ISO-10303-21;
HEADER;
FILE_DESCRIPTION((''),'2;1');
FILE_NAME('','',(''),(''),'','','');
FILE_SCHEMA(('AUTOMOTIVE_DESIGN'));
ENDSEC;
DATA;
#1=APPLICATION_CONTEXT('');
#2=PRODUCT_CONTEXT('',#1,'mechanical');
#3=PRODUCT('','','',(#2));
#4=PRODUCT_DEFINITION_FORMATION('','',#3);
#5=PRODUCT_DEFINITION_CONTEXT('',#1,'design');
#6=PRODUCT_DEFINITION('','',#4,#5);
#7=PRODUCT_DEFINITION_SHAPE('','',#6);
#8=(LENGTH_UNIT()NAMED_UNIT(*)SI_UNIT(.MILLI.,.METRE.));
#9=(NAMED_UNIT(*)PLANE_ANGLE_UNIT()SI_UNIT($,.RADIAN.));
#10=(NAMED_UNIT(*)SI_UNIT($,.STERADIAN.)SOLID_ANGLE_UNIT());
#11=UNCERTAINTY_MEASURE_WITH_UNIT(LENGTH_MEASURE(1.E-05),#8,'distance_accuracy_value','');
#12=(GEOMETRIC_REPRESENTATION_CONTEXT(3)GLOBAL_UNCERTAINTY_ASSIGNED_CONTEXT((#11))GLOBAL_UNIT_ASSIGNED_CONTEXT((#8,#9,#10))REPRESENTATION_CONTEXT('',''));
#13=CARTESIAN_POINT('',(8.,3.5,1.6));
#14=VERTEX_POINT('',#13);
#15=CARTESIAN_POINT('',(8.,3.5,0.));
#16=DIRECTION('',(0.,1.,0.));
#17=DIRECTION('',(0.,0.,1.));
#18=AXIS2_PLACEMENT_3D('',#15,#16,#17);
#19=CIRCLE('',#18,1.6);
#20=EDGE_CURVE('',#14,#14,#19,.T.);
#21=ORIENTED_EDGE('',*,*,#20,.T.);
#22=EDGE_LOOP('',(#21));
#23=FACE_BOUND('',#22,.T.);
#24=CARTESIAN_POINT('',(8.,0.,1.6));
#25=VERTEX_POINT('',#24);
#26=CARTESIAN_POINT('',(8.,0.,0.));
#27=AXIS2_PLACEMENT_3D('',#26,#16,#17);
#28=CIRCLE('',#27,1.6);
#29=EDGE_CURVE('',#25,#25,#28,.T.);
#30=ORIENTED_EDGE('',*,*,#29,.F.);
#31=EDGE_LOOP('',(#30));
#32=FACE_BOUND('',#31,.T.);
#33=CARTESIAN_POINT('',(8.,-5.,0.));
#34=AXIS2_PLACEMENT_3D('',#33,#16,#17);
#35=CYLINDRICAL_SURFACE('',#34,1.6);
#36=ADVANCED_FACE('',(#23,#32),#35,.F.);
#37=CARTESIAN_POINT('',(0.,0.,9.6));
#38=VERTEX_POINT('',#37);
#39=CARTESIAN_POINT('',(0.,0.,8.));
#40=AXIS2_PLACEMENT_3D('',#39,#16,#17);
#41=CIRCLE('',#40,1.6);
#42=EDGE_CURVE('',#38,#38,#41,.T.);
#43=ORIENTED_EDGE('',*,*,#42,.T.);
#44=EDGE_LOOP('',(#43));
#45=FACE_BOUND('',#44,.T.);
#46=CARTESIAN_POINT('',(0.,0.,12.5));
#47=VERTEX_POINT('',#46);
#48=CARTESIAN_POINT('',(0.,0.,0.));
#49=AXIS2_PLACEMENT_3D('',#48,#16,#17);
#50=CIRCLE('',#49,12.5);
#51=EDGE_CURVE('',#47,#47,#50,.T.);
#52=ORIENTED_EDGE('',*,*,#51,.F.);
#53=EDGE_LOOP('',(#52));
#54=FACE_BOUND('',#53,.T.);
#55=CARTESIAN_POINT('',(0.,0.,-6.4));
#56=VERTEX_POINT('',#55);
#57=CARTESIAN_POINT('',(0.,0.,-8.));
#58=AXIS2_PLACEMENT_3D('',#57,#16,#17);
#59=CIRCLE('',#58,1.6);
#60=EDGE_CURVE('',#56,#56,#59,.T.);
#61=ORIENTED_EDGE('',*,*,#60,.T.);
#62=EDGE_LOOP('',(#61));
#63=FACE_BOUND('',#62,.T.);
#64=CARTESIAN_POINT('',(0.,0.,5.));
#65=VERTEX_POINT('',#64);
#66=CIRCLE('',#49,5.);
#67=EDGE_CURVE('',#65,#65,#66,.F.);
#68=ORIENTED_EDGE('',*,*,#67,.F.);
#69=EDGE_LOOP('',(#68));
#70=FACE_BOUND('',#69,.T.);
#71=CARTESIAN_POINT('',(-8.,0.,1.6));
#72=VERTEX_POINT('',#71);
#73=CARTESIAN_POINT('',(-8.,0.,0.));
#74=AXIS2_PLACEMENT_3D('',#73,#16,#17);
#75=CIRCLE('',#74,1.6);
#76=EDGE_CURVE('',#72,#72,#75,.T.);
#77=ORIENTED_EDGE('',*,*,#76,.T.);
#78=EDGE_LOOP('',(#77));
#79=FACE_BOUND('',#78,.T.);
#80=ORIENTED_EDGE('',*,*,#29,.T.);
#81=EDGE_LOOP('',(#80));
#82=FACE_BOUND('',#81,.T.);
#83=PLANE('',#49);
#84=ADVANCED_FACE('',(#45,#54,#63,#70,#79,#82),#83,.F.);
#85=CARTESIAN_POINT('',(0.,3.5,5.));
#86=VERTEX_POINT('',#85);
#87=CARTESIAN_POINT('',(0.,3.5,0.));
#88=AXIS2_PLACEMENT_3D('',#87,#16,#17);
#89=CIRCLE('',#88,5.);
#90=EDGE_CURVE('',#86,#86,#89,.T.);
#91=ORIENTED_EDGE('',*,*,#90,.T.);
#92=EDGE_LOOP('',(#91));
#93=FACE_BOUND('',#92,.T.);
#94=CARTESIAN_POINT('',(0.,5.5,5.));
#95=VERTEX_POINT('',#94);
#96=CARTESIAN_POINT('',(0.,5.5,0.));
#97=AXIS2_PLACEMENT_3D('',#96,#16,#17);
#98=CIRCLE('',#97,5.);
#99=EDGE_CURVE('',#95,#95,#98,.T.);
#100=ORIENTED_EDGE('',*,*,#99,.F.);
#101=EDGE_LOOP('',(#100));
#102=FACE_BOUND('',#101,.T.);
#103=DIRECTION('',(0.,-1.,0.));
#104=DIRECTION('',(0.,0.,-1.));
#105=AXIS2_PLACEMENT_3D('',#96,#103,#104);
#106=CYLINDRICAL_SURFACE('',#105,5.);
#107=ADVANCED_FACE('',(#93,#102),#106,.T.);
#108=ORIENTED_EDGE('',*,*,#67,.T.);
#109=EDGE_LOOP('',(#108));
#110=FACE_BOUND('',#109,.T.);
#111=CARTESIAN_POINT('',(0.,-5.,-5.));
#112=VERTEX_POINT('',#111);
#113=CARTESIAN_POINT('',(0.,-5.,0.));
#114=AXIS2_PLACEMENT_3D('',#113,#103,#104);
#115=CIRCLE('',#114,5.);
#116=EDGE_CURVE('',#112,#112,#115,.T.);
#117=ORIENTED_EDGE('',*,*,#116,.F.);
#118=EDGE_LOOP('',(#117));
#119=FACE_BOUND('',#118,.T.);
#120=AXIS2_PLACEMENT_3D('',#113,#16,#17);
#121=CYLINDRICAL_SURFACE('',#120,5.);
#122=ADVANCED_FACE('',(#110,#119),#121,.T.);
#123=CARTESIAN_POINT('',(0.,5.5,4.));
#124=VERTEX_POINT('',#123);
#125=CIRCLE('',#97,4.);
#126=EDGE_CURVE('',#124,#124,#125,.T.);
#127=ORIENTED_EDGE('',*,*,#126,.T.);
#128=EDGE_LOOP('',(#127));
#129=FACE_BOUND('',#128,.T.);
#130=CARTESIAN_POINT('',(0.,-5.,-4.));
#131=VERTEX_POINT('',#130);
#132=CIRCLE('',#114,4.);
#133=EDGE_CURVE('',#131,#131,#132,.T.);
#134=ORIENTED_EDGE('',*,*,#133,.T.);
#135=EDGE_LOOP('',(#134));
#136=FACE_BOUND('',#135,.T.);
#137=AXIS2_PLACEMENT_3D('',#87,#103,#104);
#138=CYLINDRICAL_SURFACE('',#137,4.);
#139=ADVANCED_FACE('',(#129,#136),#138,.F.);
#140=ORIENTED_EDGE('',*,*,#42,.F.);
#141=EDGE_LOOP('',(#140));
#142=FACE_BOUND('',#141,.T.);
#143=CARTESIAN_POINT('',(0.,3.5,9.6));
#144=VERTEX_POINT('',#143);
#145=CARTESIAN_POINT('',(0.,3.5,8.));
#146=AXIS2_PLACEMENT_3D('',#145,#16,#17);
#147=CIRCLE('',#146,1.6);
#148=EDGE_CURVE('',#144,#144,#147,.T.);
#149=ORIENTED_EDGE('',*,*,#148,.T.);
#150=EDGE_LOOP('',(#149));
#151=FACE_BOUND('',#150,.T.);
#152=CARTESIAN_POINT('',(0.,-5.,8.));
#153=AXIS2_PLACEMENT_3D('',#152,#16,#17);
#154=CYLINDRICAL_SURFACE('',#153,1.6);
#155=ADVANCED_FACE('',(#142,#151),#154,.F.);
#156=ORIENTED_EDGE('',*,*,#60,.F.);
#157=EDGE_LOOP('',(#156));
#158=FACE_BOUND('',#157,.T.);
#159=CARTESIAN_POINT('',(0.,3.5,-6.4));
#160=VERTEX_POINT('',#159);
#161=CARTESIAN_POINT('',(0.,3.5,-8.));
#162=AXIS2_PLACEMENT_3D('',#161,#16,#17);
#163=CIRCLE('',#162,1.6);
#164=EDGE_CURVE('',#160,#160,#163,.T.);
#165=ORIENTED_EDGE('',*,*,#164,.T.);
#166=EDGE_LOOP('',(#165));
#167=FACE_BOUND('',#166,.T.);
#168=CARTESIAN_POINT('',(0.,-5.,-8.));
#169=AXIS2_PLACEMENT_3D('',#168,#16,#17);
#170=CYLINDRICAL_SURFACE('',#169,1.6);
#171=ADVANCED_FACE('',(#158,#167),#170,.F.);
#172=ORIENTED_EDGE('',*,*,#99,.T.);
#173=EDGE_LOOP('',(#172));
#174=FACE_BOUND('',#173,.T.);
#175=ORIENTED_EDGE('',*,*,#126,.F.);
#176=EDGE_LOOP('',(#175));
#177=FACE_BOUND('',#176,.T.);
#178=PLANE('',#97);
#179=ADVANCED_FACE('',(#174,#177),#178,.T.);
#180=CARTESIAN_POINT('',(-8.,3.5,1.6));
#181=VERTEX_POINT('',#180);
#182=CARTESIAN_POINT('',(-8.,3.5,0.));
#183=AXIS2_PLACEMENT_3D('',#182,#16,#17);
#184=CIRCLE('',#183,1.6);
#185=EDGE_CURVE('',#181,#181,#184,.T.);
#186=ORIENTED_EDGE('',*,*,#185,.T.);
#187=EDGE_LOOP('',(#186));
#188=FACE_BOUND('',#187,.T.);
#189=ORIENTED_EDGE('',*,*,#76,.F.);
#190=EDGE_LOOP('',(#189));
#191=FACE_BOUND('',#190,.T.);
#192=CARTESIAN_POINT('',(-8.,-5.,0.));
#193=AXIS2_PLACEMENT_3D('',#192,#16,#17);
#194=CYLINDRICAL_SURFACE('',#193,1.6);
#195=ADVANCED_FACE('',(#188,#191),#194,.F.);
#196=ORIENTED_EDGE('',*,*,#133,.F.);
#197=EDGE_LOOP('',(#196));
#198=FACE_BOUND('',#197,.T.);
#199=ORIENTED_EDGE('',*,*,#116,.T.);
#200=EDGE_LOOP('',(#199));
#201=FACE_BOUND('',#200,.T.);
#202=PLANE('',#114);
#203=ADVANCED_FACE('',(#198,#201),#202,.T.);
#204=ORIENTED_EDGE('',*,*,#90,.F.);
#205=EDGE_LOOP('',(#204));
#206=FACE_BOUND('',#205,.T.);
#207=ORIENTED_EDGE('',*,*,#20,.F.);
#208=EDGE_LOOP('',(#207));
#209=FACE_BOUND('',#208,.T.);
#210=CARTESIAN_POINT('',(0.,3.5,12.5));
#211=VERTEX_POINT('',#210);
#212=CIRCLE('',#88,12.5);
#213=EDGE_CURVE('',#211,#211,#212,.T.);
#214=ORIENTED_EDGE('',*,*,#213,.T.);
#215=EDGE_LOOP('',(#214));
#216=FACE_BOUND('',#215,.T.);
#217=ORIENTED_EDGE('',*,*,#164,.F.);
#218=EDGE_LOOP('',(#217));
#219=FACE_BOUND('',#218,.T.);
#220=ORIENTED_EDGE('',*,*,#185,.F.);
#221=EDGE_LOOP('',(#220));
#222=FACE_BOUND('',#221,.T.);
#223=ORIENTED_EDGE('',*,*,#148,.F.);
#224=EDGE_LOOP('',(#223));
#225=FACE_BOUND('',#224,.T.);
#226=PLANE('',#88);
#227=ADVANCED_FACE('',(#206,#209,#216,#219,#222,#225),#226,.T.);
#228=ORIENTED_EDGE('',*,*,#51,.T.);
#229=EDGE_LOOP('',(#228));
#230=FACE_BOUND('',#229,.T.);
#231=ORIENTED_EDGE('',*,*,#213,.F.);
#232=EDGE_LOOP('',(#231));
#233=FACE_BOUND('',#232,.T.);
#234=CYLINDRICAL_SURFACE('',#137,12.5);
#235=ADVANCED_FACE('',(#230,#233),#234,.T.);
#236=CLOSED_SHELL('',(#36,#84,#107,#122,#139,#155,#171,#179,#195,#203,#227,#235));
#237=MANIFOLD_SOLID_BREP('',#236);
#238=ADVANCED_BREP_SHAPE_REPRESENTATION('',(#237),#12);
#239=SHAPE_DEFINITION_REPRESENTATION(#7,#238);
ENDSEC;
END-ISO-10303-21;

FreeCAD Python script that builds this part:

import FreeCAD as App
import Part
import Sketcher
from FreeCAD import Vector

doc = App.newDocument("Part")
body = doc.addObject("PartDesign::Body", "Body")

# Sketch on XZ plane
sketch1 = doc.addObject("Sketcher::SketchObject", "Sketch")
body.addObject(sketch1)
sketch1.AttachmentSupport = (doc.XZ_Plane, [""])
sketch1.MapMode = "FlatFace"
sketch1.addGeometry(Part.Circle(Vector(0, 0, 0), Vector(0, 0, 1), 12.5), False)
sketch1.addGeometry(Part.Circle(Vector(0, 0, 0), Vector(0, 0, 1), 4), False)
sketch1.addConstraint(Sketcher.Constraint("Coincident", 0, 3, -1, 1))
sketch1.addConstraint(Sketcher.Constraint("Coincident", 1, 3, -1, 1))
sketch1.addConstraint(Sketcher.Constraint("Diameter", 0, 25.0))
sketch1.addConstraint(Sketcher.Constraint("Diameter", 1, 8.0))
pad1 = doc.addObject("PartDesign::Pad", "Pad")
body.addObject(pad1)
pad1.Profile = sketch1
pad1.Length = 3.5
pad1.Reversed = True

# Sketch on XZ plane
sketch2 = doc.addObject("Sketcher::SketchObject", "Sketch001")
body.addObject(sketch2)
sketch2.AttachmentSupport = (doc.XZ_Plane, [""])
sketch2.MapMode = "FlatFace"
sketch2.AttachmentOffset = App.Placement(Vector(0, 0, -3.5), App.Rotation())
sketch2.addGeometry(Part.Circle(Vector(0, 0, 0), Vector(0, 0, 1), 5), False)
sketch2.addGeometry(Part.Circle(Vector(0, 0, 0), Vector(0, 0, 1), 4), False)
sketch2.addConstraint(Sketcher.Constraint("Coincident", 0, 3, -1, 1))
sketch2.addConstraint(Sketcher.Constraint("Coincident", 1, 3, -1, 1))
sketch2.addConstraint(Sketcher.Constraint("Diameter", 0, 10.0))
sketch2.addConstraint(Sketcher.Constraint("Diameter", 1, 8.0))
pad2 = doc.addObject("PartDesign::Pad", "Pad001")
body.addObject(pad2)
pad2.Profile = sketch2
pad2.Length = 2
pad2.Reversed = True

# Sketch on XZ plane
sketch3 = doc.addObject("Sketcher::SketchObject", "Sketch002")
body.addObject(sketch3)
sketch3.AttachmentSupport = (doc.XZ_Plane, [""])
sketch3.MapMode = "FlatFace"
sketch3.addGeometry(Part.Circle(Vector(0, 0, 0), Vector(0, 0, 1), 5), False)
sketch3.addGeometry(Part.Circle(Vector(0, 0, 0), Vector(0, 0, 1), 4), False)
sketch3.addConstraint(Sketcher.Constraint("Coincident", 0, 3, -1, 1))
sketch3.addConstraint(Sketcher.Constraint("Coincident", 1, 3, -1, 1))
sketch3.addConstraint(Sketcher.Constraint("Diameter", 0, 10.0))
sketch3.addConstraint(Sketcher.Constraint("Diameter", 1, 8.0))
pad3 = doc.addObject("PartDesign::Pad", "Pad002")
body.addObject(pad3)
pad3.Profile = sketch3
pad3.Length = 5

# Sketch on XZ plane
sketch4 = doc.addObject("Sketcher::SketchObject", "Sketch003")
body.addObject(sketch4)
sketch4.AttachmentSupport = (doc.XZ_Plane, [""])
sketch4.MapMode = "FlatFace"
sketch4.AttachmentOffset = App.Placement(Vector(0, 0, -3.5), App.Rotation())
sketch4.addGeometry(Part.Circle(Vector(0, -8, 0), Vector(0, 0, 1), 1.6), False)
sketch4.addGeometry(Part.Circle(Vector(8, 0, 0), Vector(0, 0, 1), 1.6), False)
sketch4.addGeometry(Part.Circle(Vector(0, 8, 0), Vector(0, 0, 1), 1.6), False)
sketch4.addGeometry(Part.Circle(Vector(-8, 0, 0), Vector(0, 0, 1), 1.6), False)
sketch4.addConstraint(Sketcher.Constraint("Equal", 0, 1))
sketch4.addConstraint(Sketcher.Constraint("Equal", 1, 2))
sketch4.addConstraint(Sketcher.Constraint("Equal", 2, 3))
sketch4.addConstraint(Sketcher.Constraint("Symmetric", 0, 3, 2, 3, -1, 1))
sketch4.addConstraint(Sketcher.Constraint("Symmetric", 1, 3, 3, 3, -1, 1))
sketch4.addConstraint(Sketcher.Constraint("PointOnObject", 0, 3, -2))
sketch4.addConstraint(Sketcher.Constraint("PointOnObject", 1, 3, -1))
sketch4.addConstraint(Sketcher.Constraint("Diameter", 0, 3.2))
sketch4.addConstraint(Sketcher.Constraint("DistanceY", 0, 3, -1, 1, 8.0))
sketch4.addConstraint(Sketcher.Constraint("DistanceX", -1, 1, 1, 3, 8.0))
pocket1 = doc.addObject("PartDesign::Pocket", "Pocket")
body.addObject(pocket1)
pocket1.Profile = sketch4
pocket1.Type = "ThroughAll"
pocket1.Reversed = True

doc.recompute()
